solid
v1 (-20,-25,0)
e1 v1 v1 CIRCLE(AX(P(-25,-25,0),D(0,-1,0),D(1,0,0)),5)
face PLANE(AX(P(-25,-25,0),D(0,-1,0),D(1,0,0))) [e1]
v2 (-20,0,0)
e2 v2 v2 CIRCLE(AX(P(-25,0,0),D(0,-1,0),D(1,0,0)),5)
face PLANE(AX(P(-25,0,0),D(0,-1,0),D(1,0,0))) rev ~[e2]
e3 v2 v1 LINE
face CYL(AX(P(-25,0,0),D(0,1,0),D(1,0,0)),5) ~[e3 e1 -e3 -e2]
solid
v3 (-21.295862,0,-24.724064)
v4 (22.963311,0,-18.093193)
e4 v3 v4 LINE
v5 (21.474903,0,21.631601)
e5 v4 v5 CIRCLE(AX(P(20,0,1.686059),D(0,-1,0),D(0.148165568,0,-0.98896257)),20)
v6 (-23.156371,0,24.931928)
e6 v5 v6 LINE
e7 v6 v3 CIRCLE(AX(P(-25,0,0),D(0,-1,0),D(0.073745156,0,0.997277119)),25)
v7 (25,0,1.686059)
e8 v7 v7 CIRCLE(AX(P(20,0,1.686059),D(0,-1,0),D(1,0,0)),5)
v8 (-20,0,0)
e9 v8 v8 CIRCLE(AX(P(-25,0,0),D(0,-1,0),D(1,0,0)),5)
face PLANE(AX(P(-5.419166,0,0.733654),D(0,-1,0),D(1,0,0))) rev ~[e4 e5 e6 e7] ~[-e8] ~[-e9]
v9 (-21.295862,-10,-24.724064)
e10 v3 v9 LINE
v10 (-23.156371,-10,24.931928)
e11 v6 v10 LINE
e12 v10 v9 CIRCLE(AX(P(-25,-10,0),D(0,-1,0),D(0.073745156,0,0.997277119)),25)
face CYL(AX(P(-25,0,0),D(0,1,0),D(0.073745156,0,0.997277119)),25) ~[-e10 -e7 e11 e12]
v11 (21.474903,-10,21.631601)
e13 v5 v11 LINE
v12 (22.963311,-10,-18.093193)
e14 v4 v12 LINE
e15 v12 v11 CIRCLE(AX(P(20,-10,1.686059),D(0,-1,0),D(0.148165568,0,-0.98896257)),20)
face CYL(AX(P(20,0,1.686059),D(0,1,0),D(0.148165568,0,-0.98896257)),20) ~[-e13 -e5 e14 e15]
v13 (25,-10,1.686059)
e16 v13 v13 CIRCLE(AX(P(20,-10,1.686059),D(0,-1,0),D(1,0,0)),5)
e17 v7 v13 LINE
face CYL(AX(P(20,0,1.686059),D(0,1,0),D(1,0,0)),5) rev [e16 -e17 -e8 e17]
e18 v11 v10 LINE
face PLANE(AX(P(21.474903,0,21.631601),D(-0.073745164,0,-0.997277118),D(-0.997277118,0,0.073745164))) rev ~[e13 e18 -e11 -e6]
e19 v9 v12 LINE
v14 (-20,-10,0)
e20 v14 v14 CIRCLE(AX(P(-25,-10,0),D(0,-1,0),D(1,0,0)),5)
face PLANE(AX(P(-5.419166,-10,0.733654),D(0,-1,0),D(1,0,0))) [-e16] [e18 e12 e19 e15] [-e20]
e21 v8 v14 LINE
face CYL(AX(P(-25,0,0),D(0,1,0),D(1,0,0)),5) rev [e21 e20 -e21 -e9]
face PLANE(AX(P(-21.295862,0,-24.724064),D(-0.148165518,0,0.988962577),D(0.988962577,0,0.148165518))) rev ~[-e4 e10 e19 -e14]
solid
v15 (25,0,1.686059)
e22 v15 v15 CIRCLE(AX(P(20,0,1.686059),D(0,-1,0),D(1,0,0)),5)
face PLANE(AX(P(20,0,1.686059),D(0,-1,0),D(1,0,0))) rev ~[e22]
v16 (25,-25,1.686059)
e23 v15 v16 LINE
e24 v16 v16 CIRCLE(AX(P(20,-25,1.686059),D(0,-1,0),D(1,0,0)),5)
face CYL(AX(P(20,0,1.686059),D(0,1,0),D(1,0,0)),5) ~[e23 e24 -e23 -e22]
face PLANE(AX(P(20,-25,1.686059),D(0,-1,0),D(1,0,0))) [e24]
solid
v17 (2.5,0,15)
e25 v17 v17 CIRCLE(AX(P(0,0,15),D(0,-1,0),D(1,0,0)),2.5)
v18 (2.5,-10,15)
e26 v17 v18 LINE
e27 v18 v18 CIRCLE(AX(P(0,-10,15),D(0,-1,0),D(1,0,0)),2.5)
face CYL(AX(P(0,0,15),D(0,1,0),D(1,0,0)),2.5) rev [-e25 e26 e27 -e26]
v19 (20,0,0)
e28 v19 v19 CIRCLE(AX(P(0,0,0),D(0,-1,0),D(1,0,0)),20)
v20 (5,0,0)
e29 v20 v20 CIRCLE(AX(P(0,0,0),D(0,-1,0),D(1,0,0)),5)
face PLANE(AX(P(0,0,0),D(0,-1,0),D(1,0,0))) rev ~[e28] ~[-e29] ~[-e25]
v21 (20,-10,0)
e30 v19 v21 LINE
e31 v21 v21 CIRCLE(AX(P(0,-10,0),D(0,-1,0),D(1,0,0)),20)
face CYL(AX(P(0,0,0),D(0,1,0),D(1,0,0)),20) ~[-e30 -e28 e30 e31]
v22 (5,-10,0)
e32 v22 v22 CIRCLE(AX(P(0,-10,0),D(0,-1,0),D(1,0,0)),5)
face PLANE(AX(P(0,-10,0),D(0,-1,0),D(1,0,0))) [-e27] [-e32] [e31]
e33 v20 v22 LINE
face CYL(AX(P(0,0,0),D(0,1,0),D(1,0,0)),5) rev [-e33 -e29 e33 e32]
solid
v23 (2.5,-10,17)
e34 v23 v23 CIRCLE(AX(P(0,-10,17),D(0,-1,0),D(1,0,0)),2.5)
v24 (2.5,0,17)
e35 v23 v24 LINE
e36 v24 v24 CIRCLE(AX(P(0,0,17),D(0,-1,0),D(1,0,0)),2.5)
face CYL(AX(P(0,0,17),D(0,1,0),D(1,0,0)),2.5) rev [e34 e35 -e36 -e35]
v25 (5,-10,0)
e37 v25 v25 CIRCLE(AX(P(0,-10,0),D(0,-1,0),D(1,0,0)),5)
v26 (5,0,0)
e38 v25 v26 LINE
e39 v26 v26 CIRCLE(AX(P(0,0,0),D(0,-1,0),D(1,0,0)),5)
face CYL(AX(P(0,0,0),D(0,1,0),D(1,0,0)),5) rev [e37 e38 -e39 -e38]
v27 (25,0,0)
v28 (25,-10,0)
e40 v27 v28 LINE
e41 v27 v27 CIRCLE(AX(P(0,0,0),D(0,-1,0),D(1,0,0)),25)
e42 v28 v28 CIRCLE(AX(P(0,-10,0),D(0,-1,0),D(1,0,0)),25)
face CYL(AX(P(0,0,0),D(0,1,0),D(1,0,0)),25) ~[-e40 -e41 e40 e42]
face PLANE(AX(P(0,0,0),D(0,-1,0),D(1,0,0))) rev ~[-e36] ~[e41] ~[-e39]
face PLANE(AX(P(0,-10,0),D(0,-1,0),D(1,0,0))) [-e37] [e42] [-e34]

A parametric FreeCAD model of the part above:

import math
import FreeCAD as App
import Part
import Sketcher
from FreeCAD import Vector
Q = App.Units.Quantity

doc = App.newDocument("Part")
body = doc.addObject("PartDesign::Body", "Body")

# Sketch on XZ plane
sketch1 = body.newObject("Sketcher::SketchObject", "Sketch")
sketch1.AttachmentSupport = (doc.getObject("XZ_Plane"), [""])
sketch1.MapMode = "FlatFace"
sketch1.addGeometry(Part.Circle(Vector(0, 0, 0), Vector(0, 0, 1), 25), False)
sketch1.addGeometry(Part.Circle(Vector(0, 0, 0), Vector(0, 0, 1), 5), False)
sketch1.addGeometry(Part.Circle(Vector(0, 17, 0), Vector(0, 0, 1), 2.5), False)
sketch1.addConstraint(Sketcher.Constraint("Coincident", 0, 3, -1, 1))
sketch1.addConstraint(Sketcher.Constraint("Coincident", 1, 3, -1, 1))
sketch1.addConstraint(Sketcher.Constraint("PointOnObject", 2, 3, -2))
sketch1.addConstraint(Sketcher.Constraint("Diameter", 0, Q("50 mm")))
sketch1.addConstraint(Sketcher.Constraint("Diameter", 1, Q("10 mm")))
sketch1.addConstraint(Sketcher.Constraint("Diameter", 2, Q("5 mm")))
sketch1.addConstraint(Sketcher.Constraint("DistanceY", -1, 1, 2, 3, Q("17 mm")))
pad1 = body.newObject("PartDesign::Pad", "Pad")
pad1.Profile = sketch1
pad1.Length = 25

# Sketch on XZ plane
sketch2 = body.newObject("Sketcher::SketchObject", "Sketch001")
sketch2.AttachmentSupport = (doc.getObject("XZ_Plane"), [""])
sketch2.MapMode = "FlatFace"
sketch2.AttachmentOffset = App.Placement(Vector(0, 0, 25), App.Rotation())
sketch2.addGeometry(Part.Circle(Vector(0, 0, 0), Vector(0, 0, 1), 25), False)
sketch2.addGeometry(Part.Circle(Vector(0, 0, 0), Vector(0, 0, 1), 5), False)
sketch2.addGeometry(Part.Circle(Vector(0, 17, 0), Vector(0, 0, 1), 2.5), False)
sketch2.addConstraint(Sketcher.Constraint("Coincident", 0, 3, -1, 1))
sketch2.addConstraint(Sketcher.Constraint("Coincident", 1, 3, -1, 1))
sketch2.addConstraint(Sketcher.Constraint("PointOnObject", 2, 3, -2))
sketch2.addConstraint(Sketcher.Constraint("Diameter", 0, Q("50 mm")))
sketch2.addConstraint(Sketcher.Constraint("Diameter", 1, Q("10 mm")))
sketch2.addConstraint(Sketcher.Constraint("Diameter", 2, Q("5 mm")))
sketch2.addConstraint(Sketcher.Constraint("DistanceY", -1, 1, 2, 3, Q("17 mm")))
pad2 = body.newObject("PartDesign::Pad", "Pad001")
pad2.Profile = sketch2
pad2.Length = 12.9
pad2.Reversed = True

# Sketch on XZ plane
sketch3 = body.newObject("Sketcher::SketchObject", "Sketch002")
sketch3.AttachmentSupport = (doc.getObject("XZ_Plane"), [""])
sketch3.MapMode = "FlatFace"
sketch3.AttachmentOffset = App.Placement(Vector(0, 0, 25), App.Rotation())
sketch3.addGeometry(Part.Circle(Vector(0, 0, 0), Vector(0, 0, 1), 25), False)
sketch3.addGeometry(Part.Circle(Vector(0, 0, 0), Vector(0, 0, 1), 5), False)
sketch3.addGeometry(Part.Circle(Vector(0, 17, 0), Vector(0, 0, 1), 2.5), False)
sketch3.addConstraint(Sketcher.Constraint("Coincident", 0, 3, -1, 1))
sketch3.addConstraint(Sketcher.Constraint("Coincident", 1, 3, -1, 1))
sketch3.addConstraint(Sketcher.Constraint("PointOnObject", 2, 3, -2))
sketch3.addConstraint(Sketcher.Constraint("Diameter", 0, Q("50 mm")))
sketch3.addConstraint(Sketcher.Constraint("Diameter", 1, Q("10 mm")))
sketch3.addConstraint(Sketcher.Constraint("Diameter", 2, Q("5 mm")))
sketch3.addConstraint(Sketcher.Constraint("DistanceY", -1, 1, 2, 3, Q("17 mm")))
pocket1 = body.newObject("PartDesign::Pocket", "Pocket")
pocket1.Profile = sketch3
pocket1.Length = 15
body2 = doc.addObject("PartDesign::Body", "Body001")

# Sketch on XZ plane
sketch4 = body2.newObject("Sketcher::SketchObject", "Sketch003")
sketch4.AttachmentSupport = (doc.getObject("XZ_Plane001"), [""])
sketch4.MapMode = "FlatFace"
sketch4.addGeometry(Part.Circle(Vector(0, 0, 0), Vector(0, 0, 1), 20), False)
sketch4.addGeometry(Part.Circle(Vector(0, 0, 0), Vector(0, 0, 1), 5), False)
sketch4.addGeometry(Part.Circle(Vector(0, 15, 0), Vector(0, 0, 1), 2.5), False)
sketch4.addConstraint(Sketcher.Constraint("Coincident", 0, 3, -1, 1))
sketch4.addConstraint(Sketcher.Constraint("Coincident", 1, 3, -1, 1))
sketch4.addConstraint(Sketcher.Constraint("PointOnObject", 2, 3, -2))
sketch4.addConstraint(Sketcher.Constraint("Diameter", 0, Q("40 mm")))
sketch4.addConstraint(Sketcher.Constraint("Diameter", 1, Q("10 mm")))
sketch4.addConstraint(Sketcher.Constraint("Diameter", 2, Q("5 mm")))
sketch4.addConstraint(Sketcher.Constraint("DistanceY", -1, 1, 2, 3, Q("15 mm")))
pad3 = body2.newObject("PartDesign::Pad", "Pad002")
pad3.Profile = sketch4
pad3.Length = 25

# Sketch on XZ plane
sketch5 = body2.newObject("Sketcher::SketchObject", "Sketch004")
sketch5.AttachmentSupport = (doc.getObject("XZ_Plane001"), [""])
sketch5.MapMode = "FlatFace"
sketch5.AttachmentOffset = App.Placement(Vector(0, 0, 25), App.Rotation())
sketch5.addGeometry(Part.Circle(Vector(0, 0, 0), Vector(0, 0, 1), 20), False)
sketch5.addGeometry(Part.Circle(Vector(0, 0, 0), Vector(0, 0, 1), 5), False)
sketch5.addGeometry(Part.Circle(Vector(0, 15, 0), Vector(0, 0, 1), 2.5), False)
sketch5.addConstraint(Sketcher.Constraint("Coincident", 0, 3, -1, 1))
sketch5.addConstraint(Sketcher.Constraint("Coincident", 1, 3, -1, 1))
sketch5.addConstraint(Sketcher.Constraint("PointOnObject", 2, 3, -2))
sketch5.addConstraint(Sketcher.Constraint("Diameter", 0, Q("40 mm")))
sketch5.addConstraint(Sketcher.Constraint("Diameter", 1, Q("10 mm")))
sketch5.addConstraint(Sketcher.Constraint("Diameter", 2, Q("5 mm")))
sketch5.addConstraint(Sketcher.Constraint("DistanceY", -1, 1, 2, 3, Q("15 mm")))
pocket2 = body2.newObject("PartDesign::Pocket", "Pocket001")
pocket2.Profile = sketch5
pocket2.Length = 15
body3 = doc.addObject("PartDesign::Body", "Body002")
body3.AllowCompound = True

# Sketch on XZ plane
sketch6 = body3.newObject("Sketcher::SketchObject", "Sketch005")
sketch6.AttachmentSupport = (doc.getObject("XZ_Plane002"), [""])
sketch6.MapMode = "FlatFace"
sketch6.addGeometry(Part.Circle(Vector(20, 1.686059, 0), Vector(0, 0, 1), 5), False)
sketch6.addGeometry(Part.Circle(Vector(-25, 0, 0), Vector(0, 0, 1), 5), False)
sketch6.addConstraint(Sketcher.Constraint("Equal", 0, 1))
sketch6.addConstraint(Sketcher.Constraint("PointOnObject", 1, 3, -1))
sketch6.addConstraint(Sketcher.Constraint("Diameter", 0, Q("10 mm")))
sketch6.addConstraint(Sketcher.Constraint("DistanceX", -1, 1, 0, 3, Q("20 mm")))
sketch6.addConstraint(Sketcher.Constraint("DistanceX", 1, 3, -1, 1, Q("25 mm")))
sketch6.addConstraint(Sketcher.Constraint("DistanceY", -1, 1, 0, 3, Q("1.686059 mm")))
pad4 = body3.newObject("PartDesign::Pad", "Pad003")
pad4.Profile = sketch6
pad4.Length = 25
body4 = doc.addObject("PartDesign::Body", "Body003")

# Sketch on XZ plane
sketch7 = body4.newObject("Sketcher::SketchObject", "Sketch006")
sketch7.AttachmentSupport = (doc.getObject("XZ_Plane003"), [""])
sketch7.MapMode = "FlatFace"
sketch7.addGeometry(Part.LineSegment(Vector(21.474903, 21.631601, 0), Vector(-23.156371, 24.931928, 0)), False)
sketch7.addGeometry(Part.ArcOfCircle(Part.Circle(Vector(-25, 0, 0), Vector(0, 0, 1), 25), math.radians(85.770875), math.radians(278.520631)), False)
sketch7.addGeometry(Part.LineSegment(Vector(-21.295862, -24.724064, 0), Vector(22.963311, -18.093193, 0)), False)
sketch7.addGeometry(Part.ArcOfCircle(Part.Circle(Vector(20, 1.686059, 0), Vector(0, 0, 1), 20), math.radians(-81.479367), math.radians(85.770874)), False)
sketch7.addGeometry(Part.Circle(Vector(-25, 0, 0), Vector(0, 0, 1), 5), False)
sketch7.addGeometry(Part.Circle(Vector(20, 1.686059, 0), Vector(0, 0, 1), 5), False)
sketch7.addConstraint(Sketcher.Constraint("Tangent", 0, 2, 1, 1))
sketch7.addConstraint(Sketcher.Constraint("Tangent", 1, 2, 2, 1))
sketch7.addConstraint(Sketcher.Constraint("Tangent", 2, 2, 3, 1))
sketch7.addConstraint(Sketcher.Constraint("Tangent", 3, 2, 0, 1))
sketch7.addConstraint(Sketcher.Constraint("Coincident", 4, 3, 1, 3))
sketch7.addConstraint(Sketcher.Constraint("Coincident", 5, 3, 3, 3))
sketch7.addConstraint(Sketcher.Constraint("Equal", 4, 5))
sketch7.addConstraint(Sketcher.Constraint("PointOnObject", 1, 3, -1))
sketch7.addConstraint(Sketcher.Constraint("Diameter", 4, Q("10 mm")))
sketch7.addConstraint(Sketcher.Constraint("Radius", 1, Q("25 mm")))
sketch7.addConstraint(Sketcher.Constraint("Radius", 3, Q("20 mm")))
sketch7.addConstraint(Sketcher.Constraint("DistanceX", 1, 3, -1, 1, Q("25 mm")))
sketch7.addConstraint(Sketcher.Constraint("DistanceX", -1, 1, 3, 3, Q("20 mm")))
sketch7.addConstraint(Sketcher.Constraint("DistanceY", -1, 1, 3, 2, Q("21.631601 mm")))
pad5 = body4.newObject("PartDesign::Pad", "Pad004")
pad5.Profile = sketch7
pad5.Length = 10

doc.recompute()
